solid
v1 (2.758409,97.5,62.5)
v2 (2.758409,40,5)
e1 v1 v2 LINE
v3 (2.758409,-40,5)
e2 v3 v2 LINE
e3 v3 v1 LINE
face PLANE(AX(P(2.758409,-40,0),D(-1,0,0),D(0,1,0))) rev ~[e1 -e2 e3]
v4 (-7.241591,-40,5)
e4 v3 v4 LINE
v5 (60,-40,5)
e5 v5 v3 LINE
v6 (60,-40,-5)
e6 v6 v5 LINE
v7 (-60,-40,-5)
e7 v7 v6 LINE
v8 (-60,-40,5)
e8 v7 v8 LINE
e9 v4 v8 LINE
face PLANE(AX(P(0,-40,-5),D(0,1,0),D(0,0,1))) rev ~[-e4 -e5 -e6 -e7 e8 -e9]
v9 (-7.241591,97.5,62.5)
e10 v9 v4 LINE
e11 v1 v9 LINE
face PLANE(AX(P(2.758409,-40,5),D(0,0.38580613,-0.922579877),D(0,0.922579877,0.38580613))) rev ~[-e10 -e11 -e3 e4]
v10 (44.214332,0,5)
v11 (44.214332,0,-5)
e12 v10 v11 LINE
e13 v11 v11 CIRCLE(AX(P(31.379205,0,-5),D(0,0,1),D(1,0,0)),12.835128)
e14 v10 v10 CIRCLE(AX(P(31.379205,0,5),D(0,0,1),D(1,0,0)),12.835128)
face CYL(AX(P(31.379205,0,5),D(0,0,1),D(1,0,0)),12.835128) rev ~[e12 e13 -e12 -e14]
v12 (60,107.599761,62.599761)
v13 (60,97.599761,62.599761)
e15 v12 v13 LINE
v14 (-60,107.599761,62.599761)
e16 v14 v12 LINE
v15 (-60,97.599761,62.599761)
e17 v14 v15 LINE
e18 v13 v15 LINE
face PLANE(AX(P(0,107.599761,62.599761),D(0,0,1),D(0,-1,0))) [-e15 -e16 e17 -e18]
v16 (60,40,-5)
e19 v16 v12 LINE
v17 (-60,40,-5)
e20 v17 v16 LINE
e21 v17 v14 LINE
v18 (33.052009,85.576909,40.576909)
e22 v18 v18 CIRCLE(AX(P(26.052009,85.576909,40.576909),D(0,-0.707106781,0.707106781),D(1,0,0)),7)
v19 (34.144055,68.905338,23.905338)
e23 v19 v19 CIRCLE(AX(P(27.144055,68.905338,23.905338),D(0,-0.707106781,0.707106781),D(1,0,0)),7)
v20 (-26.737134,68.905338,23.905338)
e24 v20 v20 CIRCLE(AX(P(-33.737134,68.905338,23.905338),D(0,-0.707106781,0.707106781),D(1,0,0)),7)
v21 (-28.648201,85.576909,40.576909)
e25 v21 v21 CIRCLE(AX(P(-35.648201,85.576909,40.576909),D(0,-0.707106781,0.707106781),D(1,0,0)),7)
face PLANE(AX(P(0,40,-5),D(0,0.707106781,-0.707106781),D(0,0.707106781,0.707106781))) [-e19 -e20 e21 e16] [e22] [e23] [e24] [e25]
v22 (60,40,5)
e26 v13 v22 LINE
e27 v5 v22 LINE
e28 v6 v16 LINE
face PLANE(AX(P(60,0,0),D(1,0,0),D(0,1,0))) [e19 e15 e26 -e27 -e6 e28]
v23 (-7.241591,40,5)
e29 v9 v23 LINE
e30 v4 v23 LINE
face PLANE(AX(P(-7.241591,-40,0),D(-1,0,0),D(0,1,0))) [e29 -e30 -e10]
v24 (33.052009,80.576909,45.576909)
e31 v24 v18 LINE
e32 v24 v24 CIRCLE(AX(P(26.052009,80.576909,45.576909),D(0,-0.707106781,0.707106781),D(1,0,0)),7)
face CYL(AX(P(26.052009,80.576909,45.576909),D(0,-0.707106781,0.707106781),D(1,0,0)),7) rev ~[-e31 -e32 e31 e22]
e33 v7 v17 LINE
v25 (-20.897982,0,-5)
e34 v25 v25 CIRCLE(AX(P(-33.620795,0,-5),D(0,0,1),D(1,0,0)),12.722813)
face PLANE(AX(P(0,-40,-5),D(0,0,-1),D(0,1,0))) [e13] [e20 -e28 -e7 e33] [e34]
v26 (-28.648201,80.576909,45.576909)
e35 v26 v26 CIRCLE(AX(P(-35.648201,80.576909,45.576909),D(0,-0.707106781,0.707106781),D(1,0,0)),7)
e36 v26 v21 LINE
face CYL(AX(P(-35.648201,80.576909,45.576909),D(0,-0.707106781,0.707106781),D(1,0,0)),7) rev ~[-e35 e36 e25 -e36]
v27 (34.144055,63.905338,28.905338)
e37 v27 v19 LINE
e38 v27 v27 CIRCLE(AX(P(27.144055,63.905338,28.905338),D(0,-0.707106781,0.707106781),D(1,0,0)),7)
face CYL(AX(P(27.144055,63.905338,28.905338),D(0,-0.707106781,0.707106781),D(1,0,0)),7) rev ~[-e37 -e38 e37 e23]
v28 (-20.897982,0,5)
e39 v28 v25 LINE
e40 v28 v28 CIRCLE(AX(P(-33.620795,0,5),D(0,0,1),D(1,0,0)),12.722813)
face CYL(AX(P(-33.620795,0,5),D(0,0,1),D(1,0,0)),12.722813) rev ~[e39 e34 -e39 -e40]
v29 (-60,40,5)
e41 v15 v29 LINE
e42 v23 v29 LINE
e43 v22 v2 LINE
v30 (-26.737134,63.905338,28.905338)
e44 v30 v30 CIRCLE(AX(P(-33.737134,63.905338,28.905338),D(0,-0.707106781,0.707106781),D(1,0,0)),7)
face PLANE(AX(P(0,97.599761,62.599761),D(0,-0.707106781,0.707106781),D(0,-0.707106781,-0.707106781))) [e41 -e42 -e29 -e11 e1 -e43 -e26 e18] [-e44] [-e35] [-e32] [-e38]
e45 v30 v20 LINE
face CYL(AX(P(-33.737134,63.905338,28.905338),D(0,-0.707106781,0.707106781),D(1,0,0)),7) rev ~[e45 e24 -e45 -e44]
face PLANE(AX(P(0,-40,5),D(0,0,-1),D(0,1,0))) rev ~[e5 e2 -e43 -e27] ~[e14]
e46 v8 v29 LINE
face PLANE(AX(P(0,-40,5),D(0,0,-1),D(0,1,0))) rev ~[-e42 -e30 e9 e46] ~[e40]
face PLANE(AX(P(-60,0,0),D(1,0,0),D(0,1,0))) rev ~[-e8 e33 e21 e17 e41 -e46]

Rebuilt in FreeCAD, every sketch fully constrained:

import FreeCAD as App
import Part
import Sketcher
from FreeCAD import Vector

doc = App.newDocument("Part")
body = doc.addObject("PartDesign::Body", "Body")

sketch1 = body.newObject("Sketcher::SketchObject", "Sketch")
sketch1.AttachmentSupport = (doc.getObject("YZ_Plane"), [""])
sketch1.MapMode = "FlatFace"
sketch1.addGeometry(Part.LineSegment(Vector(-40, 5, 0), Vector(-40, -5, 0)), False)
sketch1.addGeometry(Part.LineSegment(Vector(-40, -5, 0), Vector(40, -5, 0)), False)
sketch1.addGeometry(Part.LineSegment(Vector(40, -5, 0), Vector(108, 63, 0)), False)
sketch1.addGeometry(Part.LineSegment(Vector(108, 63, 0), Vector(98, 63, 0)), False)
sketch1.addGeometry(Part.LineSegment(Vector(98, 63, 0), Vector(40, 5, 0)), False)
sketch1.addGeometry(Part.LineSegment(Vector(40, 5, 0), Vector(-40, 5, 0)), False)
sketch1.addConstraint(Sketcher.Constraint("Coincident", 0, 2, 1, 1))
sketch1.addConstraint(Sketcher.Constraint("Coincident", 1, 2, 2, 1))
sketch1.addConstraint(Sketcher.Constraint("Coincident", 2, 2, 3, 1))
sketch1.addConstraint(Sketcher.Constraint("Coincident", 3, 2, 4, 1))
sketch1.addConstraint(Sketcher.Constraint("Coincident", 4, 2, 5, 1))
sketch1.addConstraint(Sketcher.Constraint("Coincident", 5, 2, 0, 1))
sketch1.addConstraint(Sketcher.Constraint("Vertical", 0))
sketch1.addConstraint(Sketcher.Constraint("Horizontal", 1))
sketch1.addConstraint(Sketcher.Constraint("Horizontal", 3))
sketch1.addConstraint(Sketcher.Constraint("Horizontal", 5))
sketch1.addConstraint(Sketcher.Constraint("Symmetric", 0, 2, 4, 2, -1, 1))
sketch1.addConstraint(Sketcher.Constraint("Parallel", 2, 4))
sketch1.addConstraint(Sketcher.Constraint("Vertical", 1, 2, 4, 2))
sketch1.addConstraint(Sketcher.Constraint("Equal", 3, 0))
sketch1.addConstraint(Sketcher.Constraint("DistanceX", 1, 1, 1, 2, 80.0))
sketch1.addConstraint(Sketcher.Constraint("DistanceX", 3, 2, 3, 1, 10.0))
sketch1.addConstraint(Sketcher.Constraint("Distance", 2, 95.600499))
pad1 = body.newObject("PartDesign::Pad", "Pad")
pad1.Profile = sketch1
pad1.Length = 120
pad1.Midplane = True

sketch2 = body.newObject("Sketcher::SketchObject", "Sketch001")
sketch2.AttachmentSupport = (doc.getObject("XY_Plane"), [""])
sketch2.MapMode = "FlatFace"
sketch2.addGeometry(Part.LineSegment(Vector(-7, 98, 0), Vector(-7, -40, 0)), False)
sketch2.addGeometry(Part.LineSegment(Vector(-7, -40, 0), Vector(3, -40, 0)), False)
sketch2.addGeometry(Part.LineSegment(Vector(3, -40, 0), Vector(3, 98, 0)), False)
sketch2.addGeometry(Part.LineSegment(Vector(3, 98, 0), Vector(-7, 98, 0)), False)
sketch2.addConstraint(Sketcher.Constraint("Coincident", 0, 2, 1, 1))
sketch2.addConstraint(Sketcher.Constraint("Coincident", 1, 2, 2, 1))
sketch2.addConstraint(Sketcher.Constraint("Coincident", 2, 2, 3, 1))
sketch2.addConstraint(Sketcher.Constraint("Coincident", 3, 2, 0, 1))
sketch2.addConstraint(Sketcher.Constraint("Vertical", 0))
sketch2.addConstraint(Sketcher.Constraint("Horizontal", 1))
sketch2.addConstraint(Sketcher.Constraint("Vertical", 2))
sketch2.addConstraint(Sketcher.Constraint("Horizontal", 3))
sketch2.addConstraint(Sketcher.Constraint("DistanceX", 1, 1, 1, 2, 10.0))
sketch2.addConstraint(Sketcher.Constraint("DistanceY", 0, 2, -1, 1, 40.0))
sketch2.addConstraint(Sketcher.Constraint("DistanceY", 0, 2, 0, 1, 137.599761))
sketch2.addConstraint(Sketcher.Constraint("DistanceX", 0, 2, -1, 1, 7.241591))
pad2 = body.newObject("PartDesign::Pad", "Pad001")
pad2.Profile = sketch2
pad2.Length = 62.5

sketch3 = body.newObject("Sketcher::SketchObject", "Sketch002")
sketch3.AttachmentSupport = (doc.getObject("YZ_Plane"), [""])
sketch3.MapMode = "FlatFace"
sketch3.AttachmentOffset = App.Placement(Vector(0, 0, 2.758409), App.Rotation())
sketch3.addGeometry(Part.LineSegment(Vector(-40, 62, 0), Vector(-40, 5, 0)), False)
sketch3.addGeometry(Part.LineSegment(Vector(-40, 5, 0), Vector(98, 62, 0)), False)
sketch3.addGeometry(Part.LineSegment(Vector(98, 62, 0), Vector(-40, 62, 0)), False)
sketch3.addConstraint(Sketcher.Constraint("Coincident", 0, 2, 1, 1))
sketch3.addConstraint(Sketcher.Constraint("Coincident", 1, 2, 2, 1))
sketch3.addConstraint(Sketcher.Constraint("Coincident", 2, 2, 0, 1))
sketch3.addConstraint(Sketcher.Constraint("Vertical", 0))
sketch3.addConstraint(Sketcher.Constraint("Horizontal", 2))
sketch3.addConstraint(Sketcher.Constraint("DistanceX", 2, 2, 2, 1, 137.5))
sketch3.addConstraint(Sketcher.Constraint("DistanceY", 0, 2, 0, 1, 57.5))
sketch3.addConstraint(Sketcher.Constraint("DistanceX", 0, 2, -1, 1, 40.0))
sketch3.addConstraint(Sketcher.Constraint("DistanceY", -1, 1, 0, 2, 5.0))
pocket1 = body.newObject("PartDesign::Pocket", "Pocket")
pocket1.Profile = sketch3
pocket1.Length = 25

sketch4 = body.newObject("Sketcher::SketchObject", "Sketch003")
sketch4.AttachmentSupport = (doc.getObject("YZ_Plane"), [""])
sketch4.MapMode = "FlatFace"
sketch4.AttachmentOffset = App.Placement(Vector(0, 0, 2.758409), App.Rotation())
sketch4.addGeometry(Part.LineSegment(Vector(98, 53, 0), Vector(45, 0, 0)), False)
sketch4.addGeometry(Part.LineSegment(Vector(45, 0, 0), Vector(98, 0, 0)), False)
sketch4.addGeometry(Part.LineSegment(Vector(98, 0, 0), Vector(98, 53, 0)), False)
sketch4.addConstraint(Sketcher.Constraint("Coincident", 0, 2, 1, 1))
sketch4.addConstraint(Sketcher.Constraint("Coincident", 1, 2, 2, 1))
sketch4.addConstraint(Sketcher.Constraint("Coincident", 2, 2, 0, 1))
sketch4.addConstraint(Sketcher.Constraint("Horizontal", 1))
sketch4.addConstraint(Sketcher.Constraint("Vertical", 2))
sketch4.addConstraint(Sketcher.Constraint("PointOnObject", 0, 2, -1))
sketch4.addConstraint(Sketcher.Constraint("Equal", 1, 2))
sketch4.addConstraint(Sketcher.Constraint("DistanceX", -1, 1, 0, 2, 45.0))
sketch4.addConstraint(Sketcher.Constraint("DistanceX", 1, 1, 1, 2, 52.599761))
pocket2 = body.newObject("PartDesign::Pocket", "Pocket001")
pocket2.Profile = sketch4
pocket2.Length = 25

sketch5 = body.newObject("Sketcher::SketchObject", "Sketch004")
sketch5.Placement = App.Placement(Vector(0, 17.5, -17.5), App.Rotation(Vector(1, 0, 0), Vector(0, 0.707106781, 0.707106781), Vector(0, -0.707106781, 0.707106781), "ZXY"))
sketch5.addGeometry(Part.Circle(Vector(26, 89, 0), Vector(0, 0, 1), 7), False)
sketch5.addGeometry(Part.Circle(Vector(27, 66, 0), Vector(0, 0, 1), 7), False)
sketch5.addGeometry(Part.Circle(Vector(-36, 89, 0), Vector(0, 0, 1), 7), False)
sketch5.addGeometry(Part.Circle(Vector(-34, 66, 0), Vector(0, 0, 1), 7), False)
sketch5.addConstraint(Sketcher.Constraint("Equal", 0, 1))
sketch5.addConstraint(Sketcher.Constraint("Equal", 1, 2))
sketch5.addConstraint(Sketcher.Constraint("Equal", 2, 3))
sketch5.addConstraint(Sketcher.Constraint("Horizontal", 0, 3, 2, 3))
sketch5.addConstraint(Sketcher.Constraint("Horizontal", 1, 3, 3, 3))
sketch5.addConstraint(Sketcher.Constraint("Diameter", 0, 14.0))
sketch5.addConstraint(Sketcher.Constraint("DistanceX", 2, 3, -1, 1, 35.648201))
sketch5.addConstraint(Sketcher.Constraint("DistanceX", -1, 1, 0, 3, 26.052009))
sketch5.addConstraint(Sketcher.Constraint("DistanceY", -1, 1, 0, 3, 89.20422))
sketch5.addConstraint(Sketcher.Constraint("DistanceY", -1, 1, 1, 3, 65.627058))
sketch5.addConstraint(Sketcher.Constraint("DistanceX", 3, 3, 1, 3, 60.881189))
sketch5.addConstraint(Sketcher.Constraint("DistanceX", -1, 1, 1, 3, 27.144055))
pocket3 = body.newObject("PartDesign::Pocket", "Pocket002")
pocket3.Profile = sketch5
pocket3.Type = "ThroughAll"

sketch6 = body.newObject("Sketcher::SketchObject", "Sketch005")
sketch6.AttachmentSupport = (doc.getObject("XY_Plane"), [""])
sketch6.MapMode = "FlatFace"
sketch6.AttachmentOffset = App.Placement(Vector(0, 0, 5), App.Rotation())
sketch6.addGeometry(Part.Circle(Vector(31, 0, 0), Vector(0, 0, 1), 13), False)
sketch6.addConstraint(Sketcher.Constraint("PointOnObject", 0, 3, -1))
sketch6.addConstraint(Sketcher.Constraint("Diameter", 0, 25.670256))
sketch6.addConstraint(Sketcher.Constraint("DistanceX", -1, 1, 0, 3, 31.379205))
pocket4 = body.newObject("PartDesign::Pocket", "Pocket003")
pocket4.Profile = sketch6
pocket4.Type = "ThroughAll"

sketch7 = body.newObject("Sketcher::SketchObject", "Sketch006")
sketch7.AttachmentSupport = (doc.getObject("XY_Plane"), [""])
sketch7.MapMode = "FlatFace"
sketch7.AttachmentOffset = App.Placement(Vector(0, 0, 5), App.Rotation())
sketch7.addGeometry(Part.Circle(Vector(-34, 0, 0), Vector(0, 0, 1), 13), False)
sketch7.addConstraint(Sketcher.Constraint("PointOnObject", 0, 3, -1))
sketch7.addConstraint(Sketcher.Constraint("Diameter", 0, 25.445626))
sketch7.addConstraint(Sketcher.Constraint("DistanceX", 0, 3, -1, 1, 33.620795))
pocket5 = body.newObject("PartDesign::Pocket", "Pocket004")
pocket5.Profile = sketch7
pocket5.Type = "ThroughAll"

doc.recompute()
